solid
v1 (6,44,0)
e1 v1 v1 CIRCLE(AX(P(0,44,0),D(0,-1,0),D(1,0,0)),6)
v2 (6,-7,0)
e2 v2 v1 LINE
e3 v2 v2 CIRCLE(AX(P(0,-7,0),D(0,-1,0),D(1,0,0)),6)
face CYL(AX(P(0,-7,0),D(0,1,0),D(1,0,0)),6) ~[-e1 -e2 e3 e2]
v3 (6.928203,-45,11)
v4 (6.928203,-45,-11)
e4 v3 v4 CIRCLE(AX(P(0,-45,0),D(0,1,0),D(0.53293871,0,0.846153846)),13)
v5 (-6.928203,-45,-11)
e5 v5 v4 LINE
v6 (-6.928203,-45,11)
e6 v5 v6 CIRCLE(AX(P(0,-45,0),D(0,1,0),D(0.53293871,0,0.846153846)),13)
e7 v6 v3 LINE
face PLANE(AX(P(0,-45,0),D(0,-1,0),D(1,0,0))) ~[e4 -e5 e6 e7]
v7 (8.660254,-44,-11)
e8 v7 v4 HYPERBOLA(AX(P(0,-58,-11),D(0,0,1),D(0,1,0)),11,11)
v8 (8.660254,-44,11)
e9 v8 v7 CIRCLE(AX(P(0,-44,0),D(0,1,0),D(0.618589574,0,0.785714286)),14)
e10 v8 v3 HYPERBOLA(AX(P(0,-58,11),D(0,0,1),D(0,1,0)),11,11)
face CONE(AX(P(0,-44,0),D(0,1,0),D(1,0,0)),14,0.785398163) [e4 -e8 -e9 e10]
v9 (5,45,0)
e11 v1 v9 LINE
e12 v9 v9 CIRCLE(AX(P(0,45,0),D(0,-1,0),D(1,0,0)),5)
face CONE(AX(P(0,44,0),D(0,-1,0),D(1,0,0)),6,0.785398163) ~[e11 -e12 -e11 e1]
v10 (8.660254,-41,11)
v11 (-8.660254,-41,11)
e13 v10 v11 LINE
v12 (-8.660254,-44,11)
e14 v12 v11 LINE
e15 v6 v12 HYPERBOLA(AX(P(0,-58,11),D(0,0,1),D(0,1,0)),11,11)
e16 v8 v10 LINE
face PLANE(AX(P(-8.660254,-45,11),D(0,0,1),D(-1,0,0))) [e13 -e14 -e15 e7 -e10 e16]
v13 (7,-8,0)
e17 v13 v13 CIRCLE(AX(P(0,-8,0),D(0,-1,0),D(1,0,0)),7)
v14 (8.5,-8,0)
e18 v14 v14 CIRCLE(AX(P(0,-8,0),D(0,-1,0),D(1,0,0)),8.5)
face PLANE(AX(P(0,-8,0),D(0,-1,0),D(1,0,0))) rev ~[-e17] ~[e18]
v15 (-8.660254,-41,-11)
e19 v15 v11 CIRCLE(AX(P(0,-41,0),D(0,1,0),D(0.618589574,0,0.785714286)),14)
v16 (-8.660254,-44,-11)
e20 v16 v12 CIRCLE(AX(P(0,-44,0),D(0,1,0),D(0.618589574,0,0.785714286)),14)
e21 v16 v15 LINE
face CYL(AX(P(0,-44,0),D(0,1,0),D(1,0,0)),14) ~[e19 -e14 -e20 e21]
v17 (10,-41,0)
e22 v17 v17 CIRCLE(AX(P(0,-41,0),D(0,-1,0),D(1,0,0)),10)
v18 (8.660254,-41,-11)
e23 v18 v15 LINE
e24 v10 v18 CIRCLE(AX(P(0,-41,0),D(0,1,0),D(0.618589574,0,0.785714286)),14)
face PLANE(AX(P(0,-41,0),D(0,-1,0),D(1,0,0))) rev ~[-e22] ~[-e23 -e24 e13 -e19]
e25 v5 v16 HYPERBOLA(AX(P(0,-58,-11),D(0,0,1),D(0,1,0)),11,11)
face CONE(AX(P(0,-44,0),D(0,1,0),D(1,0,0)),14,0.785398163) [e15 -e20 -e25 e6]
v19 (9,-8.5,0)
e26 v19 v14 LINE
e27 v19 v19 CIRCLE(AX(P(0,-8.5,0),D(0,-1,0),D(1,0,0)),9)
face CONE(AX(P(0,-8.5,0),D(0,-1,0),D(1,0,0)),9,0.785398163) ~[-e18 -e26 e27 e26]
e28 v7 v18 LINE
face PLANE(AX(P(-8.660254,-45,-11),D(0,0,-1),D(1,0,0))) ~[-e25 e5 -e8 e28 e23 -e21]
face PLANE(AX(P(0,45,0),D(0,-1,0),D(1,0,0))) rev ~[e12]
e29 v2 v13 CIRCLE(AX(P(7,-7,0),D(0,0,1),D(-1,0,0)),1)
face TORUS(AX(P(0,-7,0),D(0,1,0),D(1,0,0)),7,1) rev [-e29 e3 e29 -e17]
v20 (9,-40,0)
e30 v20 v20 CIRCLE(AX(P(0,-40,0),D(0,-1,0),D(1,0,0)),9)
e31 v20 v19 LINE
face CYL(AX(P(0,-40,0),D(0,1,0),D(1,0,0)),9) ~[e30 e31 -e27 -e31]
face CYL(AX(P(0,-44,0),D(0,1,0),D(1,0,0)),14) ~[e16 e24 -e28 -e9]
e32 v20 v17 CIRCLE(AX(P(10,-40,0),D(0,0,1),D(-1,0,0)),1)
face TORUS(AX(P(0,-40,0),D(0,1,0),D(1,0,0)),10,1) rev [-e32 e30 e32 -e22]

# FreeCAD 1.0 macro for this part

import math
import FreeCAD as App
import Part
import Sketcher
Q = App.Units.Quantity


def add_polygon(sketch, points):
    """Adds a closed chain of lines whose ends are joined by coincident constraints."""
    first, n = sketch.GeometryCount, len(points)
    for a, b in zip(points, points[1:] + points[:1]):
        sketch.addGeometry(Part.LineSegment(App.Vector(*a, 0), App.Vector(*b, 0)), False)
    for i in range(n):
        sketch.addConstraint(Sketcher.Constraint("Coincident", first + i, 2, first + (i + 1) % n, 1))

doc = App.newDocument("Part")
body = doc.addObject("PartDesign::Body", "Body")

sketch1 = doc.addObject("Sketcher::SketchObject", "Sketch")
body.addObject(sketch1)
sketch1.AttachmentSupport = (doc.XY_Plane, [""])
sketch1.MapMode = "FlatFace"
sketch1.addGeometry([
    Part.LineSegment(App.Vector(5, 45, 0), App.Vector(0, 45, 0)),
    Part.LineSegment(App.Vector(0, 45, 0), App.Vector(0, -45, 0)),
    Part.LineSegment(App.Vector(0, -45, 0), App.Vector(13, -45, 0)),
    Part.LineSegment(App.Vector(13, -45, 0), App.Vector(14, -44, 0)),
    Part.LineSegment(App.Vector(14, -44, 0), App.Vector(14, -41, 0)),
    Part.LineSegment(App.Vector(14, -41, 0), App.Vector(10, -41, 0)),
    Part.ArcOfCircle(Part.Circle(App.Vector(10, -40, 0), App.Vector(0, 0, 1), 1), math.radians(180), math.radians(270)),
    Part.LineSegment(App.Vector(9, -40, 0), App.Vector(9, -8.5, 0)),
    Part.LineSegment(App.Vector(9, -8.5, 0), App.Vector(8.5, -8, 0)),
    Part.LineSegment(App.Vector(8.5, -8, 0), App.Vector(7, -8, 0)),
    Part.ArcOfCircle(Part.Circle(App.Vector(7, -7, 0), App.Vector(0, 0, 1), 1), math.radians(180), math.radians(270)),
    Part.LineSegment(App.Vector(6, -7, 0), App.Vector(6, 44, 0)),
    Part.LineSegment(App.Vector(6, 44, 0), App.Vector(5, 45, 0)),
], False)
sketch1.addConstraint([
    Sketcher.Constraint("Coincident", 0, 2, 1, 1),
    Sketcher.Constraint("Coincident", 1, 2, 2, 1),
    Sketcher.Constraint("Coincident", 2, 2, 3, 1),
    Sketcher.Constraint("Coincident", 3, 2, 4, 1),
    Sketcher.Constraint("Coincident", 4, 2, 5, 1),
    Sketcher.Constraint("Tangent", 5, 2, 6, 2),
    Sketcher.Constraint("Tangent", 6, 1, 7, 1),
    Sketcher.Constraint("Coincident", 7, 2, 8, 1),
    Sketcher.Constraint("Coincident", 8, 2, 9, 1),
    Sketcher.Constraint("Tangent", 9, 2, 10, 2),
    Sketcher.Constraint("Tangent", 10, 1, 11, 1),
    Sketcher.Constraint("Coincident", 11, 2, 12, 1),
    Sketcher.Constraint("Coincident", 12, 2, 0, 1),
    Sketcher.Constraint("Horizontal", 0),
    Sketcher.Constraint("Vertical", 1),
    Sketcher.Constraint("Horizontal", 2),
    Sketcher.Constraint("Vertical", 4),
    Sketcher.Constraint("Horizontal", 5),
    Sketcher.Constraint("Vertical", 7),
    Sketcher.Constraint("Horizontal", 9),
    Sketcher.Constraint("Vertical", 11),
    Sketcher.Constraint("Equal", 6, 10),
    Sketcher.Constraint("Symmetric", 0, 2, 1, 2, -1, 1),
    Sketcher.Constraint("Perpendicular", 3, 8),
    Sketcher.Constraint("Parallel", 8, 12),
    Sketcher.Constraint("Equal", 3, 12),
    Sketcher.Constraint("Radius", 6, Q("1 mm")),
    Sketcher.Constraint("DistanceX", 5, 2, 5, 1, Q("4 mm")),
    Sketcher.Constraint("DistanceY", 1, 2, 1, 1, Q("90 mm")),
    Sketcher.Constraint("Angle", 3, Q("45 deg")),
    Sketcher.Constraint("DistanceY", 6, 3, 10, 3, Q("33 mm")),
    Sketcher.Constraint("DistanceX", 2, 2, 3, 2, Q("1 mm")),
    Sketcher.Constraint("DistanceY", 3, 2, 6, 3, Q("4 mm")),
    Sketcher.Constraint("DistanceX", 8, 2, 7, 2, Q("0.5 mm")),
    Sketcher.Constraint("DistanceX", 0, 2, 0, 1, Q("5 mm")),
    Sketcher.Constraint("DistanceX", 2, 1, 2, 2, Q("13 mm")),
])
revolution = doc.addObject("PartDesign::Revolution", "Revolution")
body.addObject(revolution)
revolution.Profile = sketch1
revolution.ReferenceAxis = (sketch1, ["V_Axis"])
revolution.Angle = 360

sketch2 = doc.addObject("Sketcher::SketchObject", "Sketch001")
body.addObject(sketch2)
sketch2.AttachmentSupport = (doc.XZ_Plane, [""])
sketch2.MapMode = "FlatFace"
sketch2.AttachmentOffset = App.Placement(App.Vector(0, 0, 45), App.Rotation())
add_polygon(sketch2, [(-14, 14), (-14, 11), (14, 11), (14, 14)])
sketch2.addConstraint([
    Sketcher.Constraint("Vertical", 0),
    Sketcher.Constraint("Horizontal", 1),
    Sketcher.Constraint("Vertical", 2),
    Sketcher.Constraint("Horizontal", 3),
    Sketcher.Constraint("DistanceX", 1, 1, 1, 2, Q("28 mm")),
    Sketcher.Constraint("DistanceY", 0, 2, 0, 1, Q("3 mm")),
    Sketcher.Constraint("DistanceX", 0, 2, -1, 1, Q("14 mm")),
    Sketcher.Constraint("DistanceY", -1, 1, 0, 2, Q("11 mm")),
])
pocket1 = doc.addObject("PartDesign::Pocket", "Pocket")
body.addObject(pocket1)
pocket1.Profile = sketch2
pocket1.Type = "ThroughAll"
doc.recompute()

mirrored = doc.addObject("PartDesign::Mirrored", "Mirrored")
body.addObject(mirrored)
mirrored.Originals = [pocket1]
mirrored.MirrorPlane = (doc.XY_Plane, [""])
body.Tip = mirrored

doc.recompute()
